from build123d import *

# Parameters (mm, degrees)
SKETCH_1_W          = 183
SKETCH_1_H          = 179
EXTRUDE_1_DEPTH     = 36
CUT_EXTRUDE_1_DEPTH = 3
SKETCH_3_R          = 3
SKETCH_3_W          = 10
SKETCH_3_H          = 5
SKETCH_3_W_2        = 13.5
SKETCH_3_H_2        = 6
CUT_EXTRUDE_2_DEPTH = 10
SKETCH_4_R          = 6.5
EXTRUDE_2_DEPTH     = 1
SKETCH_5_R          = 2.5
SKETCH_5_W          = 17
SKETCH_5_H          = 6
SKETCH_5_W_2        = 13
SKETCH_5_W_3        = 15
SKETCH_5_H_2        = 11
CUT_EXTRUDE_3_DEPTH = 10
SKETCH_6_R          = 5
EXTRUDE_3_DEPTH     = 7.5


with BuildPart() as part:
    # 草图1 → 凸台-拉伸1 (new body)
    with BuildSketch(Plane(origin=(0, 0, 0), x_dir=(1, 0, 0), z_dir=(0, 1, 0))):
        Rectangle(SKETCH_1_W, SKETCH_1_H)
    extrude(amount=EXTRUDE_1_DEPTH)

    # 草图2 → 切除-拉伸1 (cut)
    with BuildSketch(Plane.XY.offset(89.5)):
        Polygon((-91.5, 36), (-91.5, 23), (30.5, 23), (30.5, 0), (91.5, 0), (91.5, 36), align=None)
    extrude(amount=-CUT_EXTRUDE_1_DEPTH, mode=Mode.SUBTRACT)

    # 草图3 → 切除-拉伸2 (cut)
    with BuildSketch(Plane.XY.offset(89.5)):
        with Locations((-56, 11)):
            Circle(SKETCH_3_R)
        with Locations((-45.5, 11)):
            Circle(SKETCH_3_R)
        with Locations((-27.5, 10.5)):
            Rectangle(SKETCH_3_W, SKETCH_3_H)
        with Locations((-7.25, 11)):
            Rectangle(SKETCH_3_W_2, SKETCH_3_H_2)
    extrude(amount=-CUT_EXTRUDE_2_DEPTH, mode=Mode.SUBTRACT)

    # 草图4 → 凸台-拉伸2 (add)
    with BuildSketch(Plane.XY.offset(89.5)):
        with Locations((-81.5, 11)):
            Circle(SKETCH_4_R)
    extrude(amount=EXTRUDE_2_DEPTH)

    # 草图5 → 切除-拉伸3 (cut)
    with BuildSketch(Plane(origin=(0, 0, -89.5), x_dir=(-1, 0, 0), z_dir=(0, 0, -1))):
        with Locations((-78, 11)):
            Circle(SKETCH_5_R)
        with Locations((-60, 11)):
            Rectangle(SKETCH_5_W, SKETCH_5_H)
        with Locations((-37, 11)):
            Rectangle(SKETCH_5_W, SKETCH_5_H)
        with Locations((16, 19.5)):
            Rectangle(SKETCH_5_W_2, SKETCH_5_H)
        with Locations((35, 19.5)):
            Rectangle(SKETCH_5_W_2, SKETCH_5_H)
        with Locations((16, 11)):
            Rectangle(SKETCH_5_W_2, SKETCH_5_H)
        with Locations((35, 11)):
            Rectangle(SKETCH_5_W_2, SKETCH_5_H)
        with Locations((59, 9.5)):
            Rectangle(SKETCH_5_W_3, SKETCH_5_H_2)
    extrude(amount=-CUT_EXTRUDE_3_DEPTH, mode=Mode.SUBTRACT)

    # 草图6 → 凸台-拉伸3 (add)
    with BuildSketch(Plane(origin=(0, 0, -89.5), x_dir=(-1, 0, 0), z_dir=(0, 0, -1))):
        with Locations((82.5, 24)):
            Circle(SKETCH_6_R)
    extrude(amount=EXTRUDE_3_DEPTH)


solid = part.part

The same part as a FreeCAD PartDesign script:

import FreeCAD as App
import Part
import Sketcher
from FreeCAD import Vector


def add_polygon(sketch, points):
    """Adds a closed chain of lines whose ends are joined by coincident constraints."""
    first, n = sketch.GeometryCount, len(points)
    for a, b in zip(points, points[1:] + points[:1]):
        sketch.addGeometry(Part.LineSegment(App.Vector(*a, 0), App.Vector(*b, 0)), False)
    for i in range(n):
        sketch.addConstraint(Sketcher.Constraint("Coincident", first + i, 2, first + (i + 1) % n, 1))

doc = App.newDocument("Part")
body = doc.addObject("PartDesign::Body", "Body")

sketch1 = body.newObject("Sketcher::SketchObject", "Sketch")
sketch1.AttachmentSupport = (doc.getObject("XZ_Plane"), [""])
sketch1.MapMode = "FlatFace"
add_polygon(sketch1, [(-91.5, -89.5), (-91.5, 89.5), (91.5, 89.5), (91.5, -89.5)])
sketch1.addConstraint(Sketcher.Constraint("Vertical", 0))
sketch1.addConstraint(Sketcher.Constraint("Horizontal", 1))
sketch1.addConstraint(Sketcher.Constraint("Vertical", 2))
sketch1.addConstraint(Sketcher.Constraint("Horizontal", 3))
sketch1.addConstraint(Sketcher.Constraint("Symmetric", 0, 2, 2, 2, -1, 1))
sketch1.addConstraint(Sketcher.Constraint("DistanceX", 1, 1, 1, 2, 183.0))
sketch1.addConstraint(Sketcher.Constraint("DistanceY", 0, 1, 0, 2, 179.0))
pad1 = body.newObject("PartDesign::Pad", "Pad")
pad1.Profile = sketch1
pad1.Length = 36
pad1.Reversed = True

sketch2 = body.newObject("Sketcher::SketchObject", "Sketch001")
sketch2.AttachmentSupport = (doc.getObject("XY_Plane"), [""])
sketch2.MapMode = "FlatFace"
sketch2.AttachmentOffset = App.Placement(Vector(0, 0, 89.5), App.Rotation())
add_polygon(sketch2, [(-91.5, 36), (-91.5, 23), (30.5, 23), (30.5, 0), (91.5, 0), (91.5, 36)])
sketch2.addConstraint(Sketcher.Constraint("Vertical", 0))
sketch2.addConstraint(Sketcher.Constraint("Horizontal", 1))
sketch2.addConstraint(Sketcher.Constraint("Vertical", 2))
sketch2.addConstraint(Sketcher.Constraint("Horizontal", 3))
sketch2.addConstraint(Sketcher.Constraint("Vertical", 4))
sketch2.addConstraint(Sketcher.Constraint("Horizontal", 5))
sketch2.addConstraint(Sketcher.Constraint("PointOnObject", 2, 2, -1))
sketch2.addConstraint(Sketcher.Constraint("DistanceX", 1, 1, 1, 2, 122.0))
sketch2.addConstraint(Sketcher.Constraint("DistanceX", 3, 1, 3, 2, 61.0))
sketch2.addConstraint(Sketcher.Constraint("DistanceY", 0, 2, 0, 1, 13.0))
sketch2.addConstraint(Sketcher.Constraint("DistanceY", 2, 2, 2, 1, 23.0))
sketch2.addConstraint(Sketcher.Constraint("DistanceX", 0, 2, -1, 1, 91.5))
pocket1 = body.newObject("PartDesign::Pocket", "Pocket")
pocket1.Profile = sketch2
pocket1.Length = 3

sketch3 = body.newObject("Sketcher::SketchObject", "Sketch002")
sketch3.AttachmentSupport = (doc.getObject("XY_Plane"), [""])
sketch3.MapMode = "FlatFace"
sketch3.AttachmentOffset = App.Placement(Vector(0, 0, 89.5), App.Rotation())
sketch3.addGeometry(Part.Circle(Vector(-56, 11, 0), Vector(0, 0, 1), 3), False)
sketch3.addGeometry(Part.Circle(Vector(-45.5, 11, 0), Vector(0, 0, 1), 3), False)
add_polygon(sketch3, [(-32.5, 13), (-32.5, 8), (-22.5, 8), (-22.5, 13)])
add_polygon(sketch3, [(-14, 14), (-14, 8), (-0.5, 8), (-0.5, 14)])
sketch3.addConstraint(Sketcher.Constraint("Vertical", 2))
sketch3.addConstraint(Sketcher.Constraint("Horizontal", 3))
sketch3.addConstraint(Sketcher.Constraint("Vertical", 4))
sketch3.addConstraint(Sketcher.Constraint("Horizontal", 5))
sketch3.addConstraint(Sketcher.Constraint("Vertical", 6))
sketch3.addConstraint(Sketcher.Constraint("Horizontal", 7))
sketch3.addConstraint(Sketcher.Constraint("Vertical", 8))
sketch3.addConstraint(Sketcher.Constraint("Horizontal", 9))
sketch3.addConstraint(Sketcher.Constraint("Equal", 0, 1))
sketch3.addConstraint(Sketcher.Constraint("Horizontal", 0, 3, 1, 3))
sketch3.addConstraint(Sketcher.Constraint("Horizontal", 3, 2, 6, 2))
sketch3.addConstraint(Sketcher.Constraint("Diameter", 0, 6.0))
sketch3.addConstraint(Sketcher.Constraint("DistanceX", 3, 1, 3, 2, 10.0))
sketch3.addConstraint(Sketcher.Constraint("DistanceY", 2, 2, 2, 1, 5.0))
sketch3.addConstraint(Sketcher.Constraint("DistanceY", 6, 2, 6, 1, 6.0))
sketch3.addConstraint(Sketcher.Constraint("DistanceX", 7, 1, 7, 2, 13.5))
sketch3.addConstraint(Sketcher.Constraint("DistanceX", 0, 3, -1, 1, 56.0))
sketch3.addConstraint(Sketcher.Constraint("DistanceY", -1, 1, 0, 3, 11.0))
sketch3.addConstraint(Sketcher.Constraint("DistanceY", -1, 1, 2, 2, 8.0))
sketch3.addConstraint(Sketcher.Constraint("DistanceX", 6, 2, -1, 1, 14.0))
sketch3.addConstraint(Sketcher.Constraint("DistanceX", 1, 3, 2, 2, 13.0))
sketch3.addConstraint(Sketcher.Constraint("DistanceX", 3, 2, 7, 2, 22.0))
pocket2 = body.newObject("PartDesign::Pocket", "Pocket001")
pocket2.Profile = sketch3
pocket2.Length = 10

sketch4 = body.newObject("Sketcher::SketchObject", "Sketch003")
sketch4.AttachmentSupport = (doc.getObject("XY_Plane"), [""])
sketch4.MapMode = "FlatFace"
sketch4.AttachmentOffset = App.Placement(Vector(0, 0, 89.5), App.Rotation())
sketch4.addGeometry(Part.Circle(Vector(-81.5, 11, 0), Vector(0, 0, 1), 6.5), False)
sketch4.addConstraint(Sketcher.Constraint("Diameter", 0, 13.0))
sketch4.addConstraint(Sketcher.Constraint("DistanceY", -1, 1, 0, 3, 11.0))
sketch4.addConstraint(Sketcher.Constraint("DistanceX", 0, 3, -1, 1, 81.5))
pad2 = body.newObject("PartDesign::Pad", "Pad001")
pad2.Profile = sketch4
pad2.Length = 1

sketch5 = body.newObject("Sketcher::SketchObject", "Sketch004")
sketch5.AttachmentSupport = (doc.getObject("XY_Plane"), [""])
sketch5.MapMode = "FlatFace"
sketch5.AttachmentOffset = App.Placement(Vector(0, 0, -89.5), App.Rotation())
sketch5.addGeometry(Part.Circle(Vector(78, 11, 0), Vector(0, 0, 1), 2.5), False)
add_polygon(sketch5, [(68.5, 14), (68.5, 8), (51.5, 8), (51.5, 14)])
add_polygon(sketch5, [(45.5, 14), (45.5, 8), (28.5, 8), (28.5, 14)])
add_polygon(sketch5, [(-9.5, 22.5), (-9.5, 16.5), (-22.5, 16.5), (-22.5, 22.5)])
add_polygon(sketch5, [(-28.5, 22.5), (-28.5, 16.5), (-41.5, 16.5), (-41.5, 22.5)])
add_polygon(sketch5, [(-9.5, 14), (-9.5, 8), (-22.5, 8), (-22.5, 14)])
add_polygon(sketch5, [(-28.5, 14), (-28.5, 8), (-41.5, 8), (-41.5, 14)])
add_polygon(sketch5, [(-51.5, 15), (-51.5, 4), (-66.5, 4), (-66.5, 15)])
sketch5.addConstraint(Sketcher.Constraint("Vertical", 1))
sketch5.addConstraint(Sketcher.Constraint("Horizontal", 2))
sketch5.addConstraint(Sketcher.Constraint("Vertical", 3))
sketch5.addConstraint(Sketcher.Constraint("Horizontal", 4))
sketch5.addConstraint(Sketcher.Constraint("Vertical", 5))
sketch5.addConstraint(Sketcher.Constraint("Horizontal", 6))
sketch5.addConstraint(Sketcher.Constraint("Vertical", 7))
sketch5.addConstraint(Sketcher.Constraint("Horizontal", 8))
sketch5.addConstraint(Sketcher.Constraint("Vertical", 9))
sketch5.addConstraint(Sketcher.Constraint("Horizontal", 10))
sketch5.addConstraint(Sketcher.Constraint("Vertical", 11))
sketch5.addConstraint(Sketcher.Constraint("Horizontal", 12))
sketch5.addConstraint(Sketcher.Constraint("Vertical", 13))
sketch5.addConstraint(Sketcher.Constraint("Horizontal", 14))
sketch5.addConstraint(Sketcher.Constraint("Vertical", 15))
sketch5.addConstraint(Sketcher.Constraint("Horizontal", 16))
sketch5.addConstraint(Sketcher.Constraint("Vertical", 17))
sketch5.addConstraint(Sketcher.Constraint("Horizontal", 18))
sketch5.addConstraint(Sketcher.Constraint("Vertical", 19))
sketch5.addConstraint(Sketcher.Constraint("Horizontal", 20))
sketch5.addConstraint(Sketcher.Constraint("Vertical", 21))
sketch5.addConstraint(Sketcher.Constraint("Horizontal", 22))
sketch5.addConstraint(Sketcher.Constraint("Vertical", 23))
sketch5.addConstraint(Sketcher.Constraint("Horizontal", 24))
sketch5.addConstraint(Sketcher.Constraint("Vertical", 25))
sketch5.addConstraint(Sketcher.Constraint("Horizontal", 26))
sketch5.addConstraint(Sketcher.Constraint("Vertical", 27))
sketch5.addConstraint(Sketcher.Constraint("Horizontal", 28))
sketch5.addConstraint(Sketcher.Constraint("Symmetric", 6, 2, 21, 2, -2))
sketch5.addConstraint(Sketcher.Constraint("Horizontal", 2, 2, 5, 2))
sketch5.addConstraint(Sketcher.Constraint("Horizontal", 4, 2, 7, 2))
sketch5.addConstraint(Sketcher.Constraint("Horizontal", 10, 2, 13, 2))
sketch5.addConstraint(Sketcher.Constraint("Horizontal", 12, 2, 15, 2))
sketch5.addConstraint(Sketcher.Constraint("Horizontal", 6, 2, 17, 2))
sketch5.addConstraint(Sketcher.Constraint("Horizontal", 8, 2, 19, 2))
sketch5.addConstraint(Sketcher.Constraint("Horizontal", 20, 2, 23, 2))
sketch5.addConstraint(Sketcher.Constraint("Vertical", 12, 2, 17, 2))
sketch5.addConstraint(Sketcher.Constraint("Vertical", 11, 2, 18, 2))
sketch5.addConstraint(Sketcher.Constraint("Vertical", 16, 2, 21, 2))
sketch5.addConstraint(Sketcher.Constraint("Vertical", 15, 2, 22, 2))
sketch5.addConstraint(Sketcher.Constraint("Equal", 4, 6))
sketch5.addConstraint(Sketcher.Constraint("Equal", 12, 14))
sketch5.addConstraint(Sketcher.Constraint("Equal", 7, 9))
sketch5.addConstraint(Sketcher.Constraint("Diameter", 0, 5.0))
sketch5.addConstraint(Sketcher.Constraint("DistanceX", 2, 2, 2, 1, 17.0))
sketch5.addConstraint(Sketcher.Constraint("DistanceX", 10, 2, 10, 1, 13.0))
sketch5.addConstraint(Sketcher.Constraint("DistanceX", 26, 2, 26, 1, 15.0))
sketch5.addConstraint(Sketcher.Constraint("DistanceY", 1, 2, 1, 1, 6.0))
sketch5.addConstraint(Sketcher.Constraint("DistanceY", 25, 2, 25, 1, 11.0))
sketch5.addConstraint(Sketcher.Constraint("DistanceX", -1, 1, 0, 3, 78.0))
sketch5.addConstraint(Sketcher.Constraint("DistanceY", -1, 1, 0, 3, 11.0))
sketch5.addConstraint(Sketcher.Constraint("DistanceY", -1, 1, 1, 2, 8.0))
sketch5.addConstraint(Sketcher.Constraint("DistanceY", -1, 1, 25, 2, 4.0))
sketch5.addConstraint(Sketcher.Constraint("DistanceX", 5, 2, 2, 2, 6.0))
sketch5.addConstraint(Sketcher.Constraint("DistanceX", 9, 2, 7, 2, 38.0))
sketch5.addConstraint(Sketcher.Constraint("DistanceX", 13, 2, 10, 2, 6.0))
sketch5.addConstraint(Sketcher.Constraint("DistanceX", 25, 2, 22, 2, 10.0))
sketch5.addConstraint(Sketcher.Constraint("DistanceY", -1, 1, 9, 2, 16.5))
pocket3 = body.newObject("PartDesign::Pocket", "Pocket002")
pocket3.Profile = sketch5
pocket3.Length = 10
pocket3.Reversed = True

sketch6 = body.newObject("Sketcher::SketchObject", "Sketch005")
sketch6.AttachmentSupport = (doc.getObject("XY_Plane"), [""])
sketch6.MapMode = "FlatFace"
sketch6.AttachmentOffset = App.Placement(Vector(0, 0, -89.5), App.Rotation())
sketch6.addGeometry(Part.Circle(Vector(-82.5, 24, 0), Vector(0, 0, 1), 5), False)
sketch6.addConstraint(Sketcher.Constraint("Diameter", 0, 10.0))
sketch6.addConstraint(Sketcher.Constraint("DistanceY", -1, 1, 0, 3, 24.0))
sketch6.addConstraint(Sketcher.Constraint("DistanceX", 0, 3, -1, 1, 82.5))
pad3 = body.newObject("PartDesign::Pad", "Pad002")
pad3.Profile = sketch6
pad3.Length = 7.5
pad3.Reversed = True

doc.recompute()
